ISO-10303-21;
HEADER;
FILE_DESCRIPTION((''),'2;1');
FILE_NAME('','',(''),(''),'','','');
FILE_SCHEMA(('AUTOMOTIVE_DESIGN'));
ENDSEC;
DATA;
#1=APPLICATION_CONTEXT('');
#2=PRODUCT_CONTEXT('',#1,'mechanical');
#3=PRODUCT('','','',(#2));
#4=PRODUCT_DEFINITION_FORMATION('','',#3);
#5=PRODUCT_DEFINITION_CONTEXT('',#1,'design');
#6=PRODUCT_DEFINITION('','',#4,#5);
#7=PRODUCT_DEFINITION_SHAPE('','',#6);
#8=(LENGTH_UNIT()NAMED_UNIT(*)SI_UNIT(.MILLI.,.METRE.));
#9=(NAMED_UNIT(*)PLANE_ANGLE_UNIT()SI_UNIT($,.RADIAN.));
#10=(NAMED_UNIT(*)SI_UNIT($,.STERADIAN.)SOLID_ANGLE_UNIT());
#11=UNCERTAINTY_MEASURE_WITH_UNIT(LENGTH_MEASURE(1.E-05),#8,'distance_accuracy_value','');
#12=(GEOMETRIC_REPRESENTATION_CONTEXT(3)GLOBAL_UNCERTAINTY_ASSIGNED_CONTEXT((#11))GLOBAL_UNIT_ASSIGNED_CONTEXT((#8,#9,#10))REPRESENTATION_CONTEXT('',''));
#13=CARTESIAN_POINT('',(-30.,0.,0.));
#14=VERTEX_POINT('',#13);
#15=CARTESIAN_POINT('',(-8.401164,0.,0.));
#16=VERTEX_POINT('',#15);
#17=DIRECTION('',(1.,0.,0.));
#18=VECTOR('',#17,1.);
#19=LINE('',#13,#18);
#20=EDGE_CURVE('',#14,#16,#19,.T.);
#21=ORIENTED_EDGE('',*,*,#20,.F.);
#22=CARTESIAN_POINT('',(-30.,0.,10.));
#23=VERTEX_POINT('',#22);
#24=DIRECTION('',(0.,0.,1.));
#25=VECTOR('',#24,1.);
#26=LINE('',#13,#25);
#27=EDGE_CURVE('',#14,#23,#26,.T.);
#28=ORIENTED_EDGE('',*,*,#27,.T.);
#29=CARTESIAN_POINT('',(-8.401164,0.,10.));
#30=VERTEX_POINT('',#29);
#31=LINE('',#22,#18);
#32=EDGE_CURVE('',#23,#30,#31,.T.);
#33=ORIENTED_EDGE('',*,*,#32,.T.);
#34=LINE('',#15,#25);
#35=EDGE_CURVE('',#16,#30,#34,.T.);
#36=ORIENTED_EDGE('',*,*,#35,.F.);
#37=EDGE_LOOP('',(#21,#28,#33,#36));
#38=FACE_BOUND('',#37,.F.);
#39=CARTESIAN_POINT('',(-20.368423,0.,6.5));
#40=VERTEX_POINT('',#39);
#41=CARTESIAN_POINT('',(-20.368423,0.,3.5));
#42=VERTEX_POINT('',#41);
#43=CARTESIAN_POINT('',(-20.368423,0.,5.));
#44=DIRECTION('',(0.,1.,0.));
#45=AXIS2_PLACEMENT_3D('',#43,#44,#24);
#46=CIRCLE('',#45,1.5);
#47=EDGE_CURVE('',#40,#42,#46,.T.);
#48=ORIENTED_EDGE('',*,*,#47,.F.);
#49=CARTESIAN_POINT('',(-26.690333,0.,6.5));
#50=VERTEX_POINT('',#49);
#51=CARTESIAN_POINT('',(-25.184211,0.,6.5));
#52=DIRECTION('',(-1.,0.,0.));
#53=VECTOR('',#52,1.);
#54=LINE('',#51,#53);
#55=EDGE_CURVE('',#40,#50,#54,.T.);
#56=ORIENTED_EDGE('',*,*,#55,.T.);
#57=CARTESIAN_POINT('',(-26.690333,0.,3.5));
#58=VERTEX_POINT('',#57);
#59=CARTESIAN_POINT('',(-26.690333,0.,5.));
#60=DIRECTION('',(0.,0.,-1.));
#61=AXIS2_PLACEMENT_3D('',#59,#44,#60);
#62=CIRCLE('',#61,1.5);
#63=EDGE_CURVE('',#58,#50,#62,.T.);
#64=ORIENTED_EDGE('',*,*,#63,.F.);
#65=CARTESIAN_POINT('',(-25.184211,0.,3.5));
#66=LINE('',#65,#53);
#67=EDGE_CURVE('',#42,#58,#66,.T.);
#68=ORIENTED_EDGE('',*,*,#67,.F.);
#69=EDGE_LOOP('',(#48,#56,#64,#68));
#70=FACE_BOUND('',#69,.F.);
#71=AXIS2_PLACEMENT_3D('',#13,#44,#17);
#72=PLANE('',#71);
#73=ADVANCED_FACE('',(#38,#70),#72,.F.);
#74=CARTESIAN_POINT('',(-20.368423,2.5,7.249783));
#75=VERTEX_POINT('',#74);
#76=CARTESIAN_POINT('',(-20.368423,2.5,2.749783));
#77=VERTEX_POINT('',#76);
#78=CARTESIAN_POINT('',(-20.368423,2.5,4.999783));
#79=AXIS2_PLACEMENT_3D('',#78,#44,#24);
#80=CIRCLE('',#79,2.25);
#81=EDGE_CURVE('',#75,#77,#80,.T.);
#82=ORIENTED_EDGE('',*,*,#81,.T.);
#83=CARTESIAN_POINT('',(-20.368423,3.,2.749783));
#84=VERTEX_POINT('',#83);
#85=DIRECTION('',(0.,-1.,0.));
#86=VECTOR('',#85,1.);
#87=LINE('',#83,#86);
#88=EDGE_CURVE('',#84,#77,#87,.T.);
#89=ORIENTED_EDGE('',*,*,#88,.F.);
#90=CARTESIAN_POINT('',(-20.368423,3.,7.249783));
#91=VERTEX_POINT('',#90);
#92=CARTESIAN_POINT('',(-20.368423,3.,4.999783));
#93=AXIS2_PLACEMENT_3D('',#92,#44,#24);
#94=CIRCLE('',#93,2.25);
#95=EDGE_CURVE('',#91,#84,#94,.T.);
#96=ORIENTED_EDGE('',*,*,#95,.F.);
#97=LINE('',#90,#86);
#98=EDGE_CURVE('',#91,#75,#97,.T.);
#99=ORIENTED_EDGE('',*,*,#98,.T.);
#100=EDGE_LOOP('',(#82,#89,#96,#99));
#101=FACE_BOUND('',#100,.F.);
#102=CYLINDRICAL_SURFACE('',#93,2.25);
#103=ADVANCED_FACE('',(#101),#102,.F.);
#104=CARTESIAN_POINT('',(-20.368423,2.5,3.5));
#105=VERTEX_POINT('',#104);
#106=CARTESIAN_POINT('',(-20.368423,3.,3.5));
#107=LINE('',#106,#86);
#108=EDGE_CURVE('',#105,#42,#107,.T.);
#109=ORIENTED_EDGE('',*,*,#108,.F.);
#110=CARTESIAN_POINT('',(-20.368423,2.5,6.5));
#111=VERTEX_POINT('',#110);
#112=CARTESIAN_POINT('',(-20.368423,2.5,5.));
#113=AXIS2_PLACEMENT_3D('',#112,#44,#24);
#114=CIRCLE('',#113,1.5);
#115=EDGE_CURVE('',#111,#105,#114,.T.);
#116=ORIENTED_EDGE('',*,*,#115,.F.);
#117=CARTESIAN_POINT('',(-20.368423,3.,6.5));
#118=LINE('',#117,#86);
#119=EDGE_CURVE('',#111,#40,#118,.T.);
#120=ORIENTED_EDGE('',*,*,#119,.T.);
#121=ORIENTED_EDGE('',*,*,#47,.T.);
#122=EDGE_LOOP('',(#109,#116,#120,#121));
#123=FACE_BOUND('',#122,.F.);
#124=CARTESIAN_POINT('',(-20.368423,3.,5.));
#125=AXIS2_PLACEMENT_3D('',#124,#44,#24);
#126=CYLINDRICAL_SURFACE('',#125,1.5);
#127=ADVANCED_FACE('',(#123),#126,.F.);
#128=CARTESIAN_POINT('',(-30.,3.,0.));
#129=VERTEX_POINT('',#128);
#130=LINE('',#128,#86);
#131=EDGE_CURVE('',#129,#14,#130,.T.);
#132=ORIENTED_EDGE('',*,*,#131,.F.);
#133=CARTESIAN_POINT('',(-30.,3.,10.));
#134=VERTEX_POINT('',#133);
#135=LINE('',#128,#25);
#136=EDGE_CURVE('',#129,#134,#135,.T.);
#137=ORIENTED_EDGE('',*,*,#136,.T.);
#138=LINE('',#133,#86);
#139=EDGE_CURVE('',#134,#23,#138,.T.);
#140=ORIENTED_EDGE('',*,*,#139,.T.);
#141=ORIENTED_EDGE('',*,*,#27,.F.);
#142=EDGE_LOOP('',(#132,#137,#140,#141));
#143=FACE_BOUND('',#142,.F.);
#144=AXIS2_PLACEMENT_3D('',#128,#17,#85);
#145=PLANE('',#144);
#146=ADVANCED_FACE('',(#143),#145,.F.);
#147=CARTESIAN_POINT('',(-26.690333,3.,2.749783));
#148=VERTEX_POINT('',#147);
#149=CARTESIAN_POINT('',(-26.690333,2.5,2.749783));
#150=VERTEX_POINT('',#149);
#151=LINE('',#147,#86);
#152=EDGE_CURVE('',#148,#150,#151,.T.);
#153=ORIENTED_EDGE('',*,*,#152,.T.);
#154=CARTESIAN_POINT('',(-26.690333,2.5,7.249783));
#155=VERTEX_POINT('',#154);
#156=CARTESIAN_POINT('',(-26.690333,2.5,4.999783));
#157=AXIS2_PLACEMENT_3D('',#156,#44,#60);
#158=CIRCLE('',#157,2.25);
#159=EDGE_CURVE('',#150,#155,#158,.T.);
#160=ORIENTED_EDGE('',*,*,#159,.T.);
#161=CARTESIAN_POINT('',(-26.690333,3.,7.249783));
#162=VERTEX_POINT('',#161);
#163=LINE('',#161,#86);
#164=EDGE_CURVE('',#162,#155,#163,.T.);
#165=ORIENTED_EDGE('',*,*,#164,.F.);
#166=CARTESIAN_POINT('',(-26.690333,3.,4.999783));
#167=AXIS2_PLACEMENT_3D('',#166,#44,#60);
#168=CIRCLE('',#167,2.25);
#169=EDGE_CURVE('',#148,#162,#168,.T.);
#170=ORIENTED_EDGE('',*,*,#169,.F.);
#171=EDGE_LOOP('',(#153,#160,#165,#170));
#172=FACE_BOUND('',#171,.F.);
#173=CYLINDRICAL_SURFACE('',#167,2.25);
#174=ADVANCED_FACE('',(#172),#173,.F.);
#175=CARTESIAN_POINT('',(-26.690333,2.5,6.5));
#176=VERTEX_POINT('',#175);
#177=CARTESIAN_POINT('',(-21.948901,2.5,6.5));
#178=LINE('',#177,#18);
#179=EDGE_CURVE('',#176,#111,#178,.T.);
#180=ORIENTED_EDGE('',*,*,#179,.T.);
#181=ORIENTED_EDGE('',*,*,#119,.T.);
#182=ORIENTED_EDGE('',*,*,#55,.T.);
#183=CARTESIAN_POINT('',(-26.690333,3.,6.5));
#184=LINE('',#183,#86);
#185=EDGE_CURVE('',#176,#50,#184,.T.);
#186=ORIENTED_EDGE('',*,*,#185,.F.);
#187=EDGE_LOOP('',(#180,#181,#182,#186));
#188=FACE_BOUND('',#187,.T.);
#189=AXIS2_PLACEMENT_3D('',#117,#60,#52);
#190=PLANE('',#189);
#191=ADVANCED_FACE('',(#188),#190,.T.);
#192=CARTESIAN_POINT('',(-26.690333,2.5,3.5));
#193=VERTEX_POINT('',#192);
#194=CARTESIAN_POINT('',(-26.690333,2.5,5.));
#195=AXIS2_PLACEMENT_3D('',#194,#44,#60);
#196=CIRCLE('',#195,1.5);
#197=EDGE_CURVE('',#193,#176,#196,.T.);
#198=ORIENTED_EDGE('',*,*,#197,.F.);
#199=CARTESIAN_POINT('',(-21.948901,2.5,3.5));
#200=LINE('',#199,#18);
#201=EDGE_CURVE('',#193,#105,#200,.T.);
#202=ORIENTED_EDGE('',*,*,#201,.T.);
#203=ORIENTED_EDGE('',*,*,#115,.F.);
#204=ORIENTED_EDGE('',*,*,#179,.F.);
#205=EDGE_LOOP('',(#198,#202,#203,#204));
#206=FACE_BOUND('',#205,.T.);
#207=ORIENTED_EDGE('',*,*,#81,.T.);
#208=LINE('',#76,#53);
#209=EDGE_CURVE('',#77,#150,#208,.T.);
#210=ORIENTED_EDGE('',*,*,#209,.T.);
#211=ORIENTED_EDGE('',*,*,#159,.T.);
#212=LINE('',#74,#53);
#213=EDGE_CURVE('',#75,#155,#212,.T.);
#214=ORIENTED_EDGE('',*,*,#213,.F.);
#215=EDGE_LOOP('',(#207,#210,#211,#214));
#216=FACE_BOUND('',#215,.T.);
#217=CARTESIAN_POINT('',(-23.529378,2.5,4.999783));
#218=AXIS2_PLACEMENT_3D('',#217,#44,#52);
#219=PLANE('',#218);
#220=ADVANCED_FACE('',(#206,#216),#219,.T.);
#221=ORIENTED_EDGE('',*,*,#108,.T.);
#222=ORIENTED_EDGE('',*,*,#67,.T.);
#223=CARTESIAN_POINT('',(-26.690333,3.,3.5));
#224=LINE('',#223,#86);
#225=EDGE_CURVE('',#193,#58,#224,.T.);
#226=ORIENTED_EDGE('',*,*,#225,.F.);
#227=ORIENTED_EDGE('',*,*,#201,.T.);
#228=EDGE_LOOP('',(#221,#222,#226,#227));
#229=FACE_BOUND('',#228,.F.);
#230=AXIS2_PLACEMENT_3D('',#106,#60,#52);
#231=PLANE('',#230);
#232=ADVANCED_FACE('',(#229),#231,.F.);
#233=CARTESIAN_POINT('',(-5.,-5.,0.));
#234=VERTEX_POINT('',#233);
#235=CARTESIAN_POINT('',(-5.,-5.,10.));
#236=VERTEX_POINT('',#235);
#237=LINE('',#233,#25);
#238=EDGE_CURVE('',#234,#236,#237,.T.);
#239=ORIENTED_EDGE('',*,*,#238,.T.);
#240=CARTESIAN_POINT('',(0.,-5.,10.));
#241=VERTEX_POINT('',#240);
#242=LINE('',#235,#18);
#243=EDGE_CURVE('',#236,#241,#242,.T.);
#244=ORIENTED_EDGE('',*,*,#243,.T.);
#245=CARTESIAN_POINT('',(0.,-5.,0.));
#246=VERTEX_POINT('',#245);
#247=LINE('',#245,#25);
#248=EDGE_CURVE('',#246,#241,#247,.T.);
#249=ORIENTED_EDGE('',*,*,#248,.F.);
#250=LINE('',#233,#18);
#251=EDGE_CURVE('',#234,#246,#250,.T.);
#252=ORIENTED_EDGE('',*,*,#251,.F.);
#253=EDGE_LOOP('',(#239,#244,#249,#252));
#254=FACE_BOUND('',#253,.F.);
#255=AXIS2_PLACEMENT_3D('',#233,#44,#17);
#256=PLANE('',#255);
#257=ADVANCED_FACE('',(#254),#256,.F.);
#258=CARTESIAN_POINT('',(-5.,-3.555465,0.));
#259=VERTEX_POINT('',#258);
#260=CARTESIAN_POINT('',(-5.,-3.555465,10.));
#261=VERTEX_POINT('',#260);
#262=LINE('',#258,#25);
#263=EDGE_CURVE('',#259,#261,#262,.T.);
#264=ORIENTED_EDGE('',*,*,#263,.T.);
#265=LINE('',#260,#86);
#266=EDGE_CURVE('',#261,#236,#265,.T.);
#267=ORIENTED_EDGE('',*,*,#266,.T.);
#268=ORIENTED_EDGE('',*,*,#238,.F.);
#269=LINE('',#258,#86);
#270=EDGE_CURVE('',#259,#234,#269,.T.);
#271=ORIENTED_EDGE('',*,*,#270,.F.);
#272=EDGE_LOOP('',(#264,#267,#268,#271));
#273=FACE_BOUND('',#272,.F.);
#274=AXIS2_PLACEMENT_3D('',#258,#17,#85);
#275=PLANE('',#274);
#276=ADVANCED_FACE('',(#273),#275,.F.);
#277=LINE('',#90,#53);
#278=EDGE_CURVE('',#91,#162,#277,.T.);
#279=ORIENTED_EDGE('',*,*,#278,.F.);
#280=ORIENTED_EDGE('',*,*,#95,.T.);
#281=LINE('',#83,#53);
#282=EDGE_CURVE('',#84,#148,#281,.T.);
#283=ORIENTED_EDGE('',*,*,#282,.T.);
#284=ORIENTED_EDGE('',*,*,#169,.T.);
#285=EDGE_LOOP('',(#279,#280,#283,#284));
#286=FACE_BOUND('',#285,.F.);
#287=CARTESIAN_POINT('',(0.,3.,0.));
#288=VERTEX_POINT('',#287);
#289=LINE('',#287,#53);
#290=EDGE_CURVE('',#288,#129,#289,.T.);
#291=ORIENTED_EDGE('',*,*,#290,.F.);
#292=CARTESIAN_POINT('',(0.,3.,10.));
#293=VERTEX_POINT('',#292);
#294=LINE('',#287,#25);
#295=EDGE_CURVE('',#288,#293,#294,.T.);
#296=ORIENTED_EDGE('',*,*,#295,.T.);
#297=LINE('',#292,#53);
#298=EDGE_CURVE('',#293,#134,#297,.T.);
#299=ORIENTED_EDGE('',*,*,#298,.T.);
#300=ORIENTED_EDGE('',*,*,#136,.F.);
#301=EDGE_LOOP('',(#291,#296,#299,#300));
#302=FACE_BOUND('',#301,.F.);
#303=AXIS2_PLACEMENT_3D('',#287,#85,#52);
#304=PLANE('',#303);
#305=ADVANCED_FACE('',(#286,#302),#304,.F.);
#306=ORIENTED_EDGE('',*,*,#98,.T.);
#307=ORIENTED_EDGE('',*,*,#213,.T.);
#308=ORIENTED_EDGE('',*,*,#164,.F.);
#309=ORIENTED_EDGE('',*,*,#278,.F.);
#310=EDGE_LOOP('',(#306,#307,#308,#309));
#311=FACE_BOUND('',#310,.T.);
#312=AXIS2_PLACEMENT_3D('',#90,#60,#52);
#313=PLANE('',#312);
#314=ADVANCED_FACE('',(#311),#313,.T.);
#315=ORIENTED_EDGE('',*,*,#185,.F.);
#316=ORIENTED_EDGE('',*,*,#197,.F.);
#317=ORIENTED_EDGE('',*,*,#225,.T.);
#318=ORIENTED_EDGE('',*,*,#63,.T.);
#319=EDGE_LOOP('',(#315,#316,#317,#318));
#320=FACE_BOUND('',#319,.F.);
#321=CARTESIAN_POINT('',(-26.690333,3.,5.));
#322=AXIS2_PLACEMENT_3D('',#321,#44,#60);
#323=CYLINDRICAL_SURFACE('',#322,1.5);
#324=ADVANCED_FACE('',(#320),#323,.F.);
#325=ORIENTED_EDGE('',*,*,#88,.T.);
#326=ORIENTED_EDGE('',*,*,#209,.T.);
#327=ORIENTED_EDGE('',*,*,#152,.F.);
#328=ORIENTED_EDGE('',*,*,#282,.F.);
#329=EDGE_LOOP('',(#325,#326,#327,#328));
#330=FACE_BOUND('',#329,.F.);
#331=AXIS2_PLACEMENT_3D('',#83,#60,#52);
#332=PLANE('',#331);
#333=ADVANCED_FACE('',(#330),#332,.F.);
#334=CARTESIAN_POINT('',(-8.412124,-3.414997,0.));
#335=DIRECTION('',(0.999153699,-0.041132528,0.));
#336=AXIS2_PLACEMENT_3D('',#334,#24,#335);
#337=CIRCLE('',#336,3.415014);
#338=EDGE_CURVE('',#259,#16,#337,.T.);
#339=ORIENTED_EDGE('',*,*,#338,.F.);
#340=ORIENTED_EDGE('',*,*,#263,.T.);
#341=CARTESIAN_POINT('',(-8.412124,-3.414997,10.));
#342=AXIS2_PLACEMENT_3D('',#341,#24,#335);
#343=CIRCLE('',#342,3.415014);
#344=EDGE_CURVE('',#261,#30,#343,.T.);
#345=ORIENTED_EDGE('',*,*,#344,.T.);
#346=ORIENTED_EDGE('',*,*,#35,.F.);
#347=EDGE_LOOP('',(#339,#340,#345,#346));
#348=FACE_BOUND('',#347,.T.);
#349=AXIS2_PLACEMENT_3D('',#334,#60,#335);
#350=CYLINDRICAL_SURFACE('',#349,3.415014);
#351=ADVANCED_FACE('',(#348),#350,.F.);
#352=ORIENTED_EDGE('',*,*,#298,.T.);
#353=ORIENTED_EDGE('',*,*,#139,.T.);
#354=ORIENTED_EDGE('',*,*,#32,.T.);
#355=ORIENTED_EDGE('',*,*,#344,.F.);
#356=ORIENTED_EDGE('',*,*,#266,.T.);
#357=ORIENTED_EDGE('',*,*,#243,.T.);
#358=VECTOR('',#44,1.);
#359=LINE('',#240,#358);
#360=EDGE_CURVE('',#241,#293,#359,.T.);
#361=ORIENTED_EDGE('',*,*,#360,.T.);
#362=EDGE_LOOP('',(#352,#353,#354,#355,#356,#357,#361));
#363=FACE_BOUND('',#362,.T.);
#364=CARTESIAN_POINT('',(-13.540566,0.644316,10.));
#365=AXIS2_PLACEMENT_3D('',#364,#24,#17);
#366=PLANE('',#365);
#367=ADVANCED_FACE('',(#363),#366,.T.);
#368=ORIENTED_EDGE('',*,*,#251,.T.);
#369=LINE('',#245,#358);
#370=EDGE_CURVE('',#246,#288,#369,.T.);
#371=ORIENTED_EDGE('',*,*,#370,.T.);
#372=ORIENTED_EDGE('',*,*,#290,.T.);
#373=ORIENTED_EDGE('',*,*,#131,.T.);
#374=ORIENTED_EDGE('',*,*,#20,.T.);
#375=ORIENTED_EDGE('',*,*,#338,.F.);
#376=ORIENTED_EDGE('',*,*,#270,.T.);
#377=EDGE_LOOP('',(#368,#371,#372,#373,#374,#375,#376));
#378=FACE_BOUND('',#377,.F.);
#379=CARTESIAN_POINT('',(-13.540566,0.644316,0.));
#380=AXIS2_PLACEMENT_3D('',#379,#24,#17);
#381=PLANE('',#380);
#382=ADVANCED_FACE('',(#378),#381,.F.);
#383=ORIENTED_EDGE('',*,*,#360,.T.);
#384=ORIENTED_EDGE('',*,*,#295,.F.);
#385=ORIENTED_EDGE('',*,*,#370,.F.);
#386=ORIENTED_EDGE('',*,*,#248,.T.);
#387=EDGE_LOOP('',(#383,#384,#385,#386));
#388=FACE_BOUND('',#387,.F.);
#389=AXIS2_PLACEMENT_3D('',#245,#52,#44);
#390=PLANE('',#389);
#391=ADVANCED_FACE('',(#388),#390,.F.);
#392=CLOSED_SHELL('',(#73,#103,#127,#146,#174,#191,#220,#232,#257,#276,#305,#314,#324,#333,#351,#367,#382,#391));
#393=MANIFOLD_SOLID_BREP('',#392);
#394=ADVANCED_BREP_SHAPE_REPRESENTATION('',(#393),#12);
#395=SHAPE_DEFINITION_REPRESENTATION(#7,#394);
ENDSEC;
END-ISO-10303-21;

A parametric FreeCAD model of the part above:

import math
import FreeCAD as App
import Part
import Sketcher

doc = App.newDocument("Part")
body = doc.addObject("PartDesign::Body", "Body")

# Sketch on XY plane
sketch1 = doc.addObject("Sketcher::SketchObject", "Sketch")
body.addObject(sketch1)
sketch1.AttachmentSupport = (doc.XY_Plane, [""])
sketch1.MapMode = "FlatFace"
sketch1.addGeometry([
    Part.LineSegment(App.Vector(-30, 0, 0), App.Vector(-8.401164, 0, 0)),  # 0
    Part.ArcOfCircle(Part.Circle(App.Vector(-8.412124, -3.414997, 0), App.Vector(0, 0, 1), 3.415014), math.radians(-2.357385), math.radians(89.816112)),  # 1
    Part.LineSegment(App.Vector(-5, -3.555465, 0), App.Vector(-5, -5, 0)),  # 2
    Part.LineSegment(App.Vector(-5, -5, 0), App.Vector(0, -5, 0)),  # 3
    Part.LineSegment(App.Vector(0, -5, 0), App.Vector(0, 3, 0)),  # 4
    Part.LineSegment(App.Vector(0, 3, 0), App.Vector(-30, 3, 0)),  # 5
    Part.LineSegment(App.Vector(-30, 3, 0), App.Vector(-30, 0, 0)),  # 6
], False)
sketch1.addConstraint([
    Sketcher.Constraint("Coincident", 0, 2, 1, 2),
    Sketcher.Constraint("Coincident", 1, 1, 2, 1),
    Sketcher.Constraint("Coincident", 2, 2, 3, 1),
    Sketcher.Constraint("Coincident", 3, 2, 4, 1),
    Sketcher.Constraint("Coincident", 4, 2, 5, 1),
    Sketcher.Constraint("Coincident", 5, 2, 6, 1),
    Sketcher.Constraint("Coincident", 6, 2, 0, 1),
    Sketcher.Constraint("Horizontal", 0),
    Sketcher.Constraint("Vertical", 2),
    Sketcher.Constraint("Horizontal", 3),
    Sketcher.Constraint("Vertical", 4),
    Sketcher.Constraint("Horizontal", 5),
    Sketcher.Constraint("Vertical", 6),
    Sketcher.Constraint("PointOnObject", 0, 2, -1),
    Sketcher.Constraint("PointOnObject", 3, 2, -2),
    Sketcher.Constraint("DistanceX", 3, 1, 3, 2, 5.0),
    Sketcher.Constraint("DistanceX", 5, 2, 5, 1, 30.0),
    Sketcher.Constraint("DistanceY", 4, 1, 4, 2, 8.0),
    Sketcher.Constraint("DistanceY", 6, 2, 6, 1, 3.0),
    Sketcher.Constraint("Radius", 1, 3.415014),
    Sketcher.Constraint("DistanceX", 0, 1, 0, 2, 21.598836),
    Sketcher.Constraint("DistanceY", 2, 2, 2, 1, 1.444535),
])
pad1 = doc.addObject("PartDesign::Pad", "Pad")
body.addObject(pad1)
pad1.Profile = sketch1
pad1.Length = 10

# Sketch on XZ plane
sketch2 = doc.addObject("Sketcher::SketchObject", "Sketch001")
body.addObject(sketch2)
sketch2.AttachmentSupport = (doc.XZ_Plane, [""])
sketch2.MapMode = "FlatFace"
sketch2.AttachmentOffset = App.Placement(App.Vector(0, 0, -3), App.Rotation())
sketch2.addGeometry([
    Part.ArcOfCircle(Part.Circle(App.Vector(-20.368423, 5, 0), App.Vector(0, 0, 1), 1.5), math.radians(-90), math.radians(90)),
    Part.LineSegment(App.Vector(-20.368423, 3.5, 0), App.Vector(-26.690333, 3.5, 0)),
    Part.ArcOfCircle(Part.Circle(App.Vector(-26.690333, 5, 0), App.Vector(0, 0, 1), 1.5), math.radians(90), math.radians(270)),
    Part.LineSegment(App.Vector(-26.690333, 6.5, 0), App.Vector(-20.368423, 6.5, 0)),
], False)
sketch2.addConstraint([
    Sketcher.Constraint("Tangent", 0, 1, 1, 1),
    Sketcher.Constraint("Tangent", 1, 2, 2, 2),
    Sketcher.Constraint("Tangent", 2, 1, 3, 1),
    Sketcher.Constraint("Tangent", 3, 2, 0, 2),
    Sketcher.Constraint("Horizontal", 1),
    Sketcher.Constraint("Horizontal", 3),
    Sketcher.Constraint("Radius", 0, 1.5),
    Sketcher.Constraint("DistanceY", -1, 1, 0, 3, 5.0),
    Sketcher.Constraint("DistanceX", 1, 2, 1, 1, 6.32191),
    Sketcher.Constraint("DistanceX", 0, 3, -1, 1, 20.368423),
])
pocket1 = doc.addObject("PartDesign::Pocket", "Pocket")
body.addObject(pocket1)
pocket1.Profile = sketch2
pocket1.Type = "ThroughAll"
pocket1.Reversed = True

# Sketch on XZ plane
sketch3 = doc.addObject("Sketcher::SketchObject", "Sketch002")
body.addObject(sketch3)
sketch3.AttachmentSupport = (doc.XZ_Plane, [""])
sketch3.MapMode = "FlatFace"
sketch3.AttachmentOffset = App.Placement(App.Vector(0, 0, -3), App.Rotation())
sketch3.addGeometry([
    Part.ArcOfCircle(Part.Circle(App.Vector(-20.368423, 4.999783, 0), App.Vector(0, 0, 1), 2.25), math.radians(-90), math.radians(90)),
    Part.LineSegment(App.Vector(-20.368423, 2.749783, 0), App.Vector(-26.690333, 2.749783, 0)),
    Part.ArcOfCircle(Part.Circle(App.Vector(-26.690333, 4.999783, 0), App.Vector(0, 0, 1), 2.25), math.radians(90), math.radians(270)),
    Part.LineSegment(App.Vector(-26.690333, 7.249783, 0), App.Vector(-20.368423, 7.249783, 0)),
], False)
sketch3.addConstraint([
    Sketcher.Constraint("Tangent", 0, 1, 1, 1),
    Sketcher.Constraint("Tangent", 1, 2, 2, 2),
    Sketcher.Constraint("Tangent", 2, 1, 3, 1),
    Sketcher.Constraint("Tangent", 3, 2, 0, 2),
    Sketcher.Constraint("Horizontal", 1),
    Sketcher.Constraint("Horizontal", 3),
    Sketcher.Constraint("Radius", 0, 2.25),
    Sketcher.Constraint("DistanceX", 1, 2, 1, 1, 6.32191),
    Sketcher.Constraint("DistanceX", 0, 3, -1, 1, 20.368423),
    Sketcher.Constraint("DistanceY", -1, 1, 0, 3, 4.999783),
])
pocket2 = doc.addObject("PartDesign::Pocket", "Pocket001")
body.addObject(pocket2)
pocket2.Profile = sketch3
pocket2.Length = 0.5
pocket2.Reversed = True

doc.recompute()
